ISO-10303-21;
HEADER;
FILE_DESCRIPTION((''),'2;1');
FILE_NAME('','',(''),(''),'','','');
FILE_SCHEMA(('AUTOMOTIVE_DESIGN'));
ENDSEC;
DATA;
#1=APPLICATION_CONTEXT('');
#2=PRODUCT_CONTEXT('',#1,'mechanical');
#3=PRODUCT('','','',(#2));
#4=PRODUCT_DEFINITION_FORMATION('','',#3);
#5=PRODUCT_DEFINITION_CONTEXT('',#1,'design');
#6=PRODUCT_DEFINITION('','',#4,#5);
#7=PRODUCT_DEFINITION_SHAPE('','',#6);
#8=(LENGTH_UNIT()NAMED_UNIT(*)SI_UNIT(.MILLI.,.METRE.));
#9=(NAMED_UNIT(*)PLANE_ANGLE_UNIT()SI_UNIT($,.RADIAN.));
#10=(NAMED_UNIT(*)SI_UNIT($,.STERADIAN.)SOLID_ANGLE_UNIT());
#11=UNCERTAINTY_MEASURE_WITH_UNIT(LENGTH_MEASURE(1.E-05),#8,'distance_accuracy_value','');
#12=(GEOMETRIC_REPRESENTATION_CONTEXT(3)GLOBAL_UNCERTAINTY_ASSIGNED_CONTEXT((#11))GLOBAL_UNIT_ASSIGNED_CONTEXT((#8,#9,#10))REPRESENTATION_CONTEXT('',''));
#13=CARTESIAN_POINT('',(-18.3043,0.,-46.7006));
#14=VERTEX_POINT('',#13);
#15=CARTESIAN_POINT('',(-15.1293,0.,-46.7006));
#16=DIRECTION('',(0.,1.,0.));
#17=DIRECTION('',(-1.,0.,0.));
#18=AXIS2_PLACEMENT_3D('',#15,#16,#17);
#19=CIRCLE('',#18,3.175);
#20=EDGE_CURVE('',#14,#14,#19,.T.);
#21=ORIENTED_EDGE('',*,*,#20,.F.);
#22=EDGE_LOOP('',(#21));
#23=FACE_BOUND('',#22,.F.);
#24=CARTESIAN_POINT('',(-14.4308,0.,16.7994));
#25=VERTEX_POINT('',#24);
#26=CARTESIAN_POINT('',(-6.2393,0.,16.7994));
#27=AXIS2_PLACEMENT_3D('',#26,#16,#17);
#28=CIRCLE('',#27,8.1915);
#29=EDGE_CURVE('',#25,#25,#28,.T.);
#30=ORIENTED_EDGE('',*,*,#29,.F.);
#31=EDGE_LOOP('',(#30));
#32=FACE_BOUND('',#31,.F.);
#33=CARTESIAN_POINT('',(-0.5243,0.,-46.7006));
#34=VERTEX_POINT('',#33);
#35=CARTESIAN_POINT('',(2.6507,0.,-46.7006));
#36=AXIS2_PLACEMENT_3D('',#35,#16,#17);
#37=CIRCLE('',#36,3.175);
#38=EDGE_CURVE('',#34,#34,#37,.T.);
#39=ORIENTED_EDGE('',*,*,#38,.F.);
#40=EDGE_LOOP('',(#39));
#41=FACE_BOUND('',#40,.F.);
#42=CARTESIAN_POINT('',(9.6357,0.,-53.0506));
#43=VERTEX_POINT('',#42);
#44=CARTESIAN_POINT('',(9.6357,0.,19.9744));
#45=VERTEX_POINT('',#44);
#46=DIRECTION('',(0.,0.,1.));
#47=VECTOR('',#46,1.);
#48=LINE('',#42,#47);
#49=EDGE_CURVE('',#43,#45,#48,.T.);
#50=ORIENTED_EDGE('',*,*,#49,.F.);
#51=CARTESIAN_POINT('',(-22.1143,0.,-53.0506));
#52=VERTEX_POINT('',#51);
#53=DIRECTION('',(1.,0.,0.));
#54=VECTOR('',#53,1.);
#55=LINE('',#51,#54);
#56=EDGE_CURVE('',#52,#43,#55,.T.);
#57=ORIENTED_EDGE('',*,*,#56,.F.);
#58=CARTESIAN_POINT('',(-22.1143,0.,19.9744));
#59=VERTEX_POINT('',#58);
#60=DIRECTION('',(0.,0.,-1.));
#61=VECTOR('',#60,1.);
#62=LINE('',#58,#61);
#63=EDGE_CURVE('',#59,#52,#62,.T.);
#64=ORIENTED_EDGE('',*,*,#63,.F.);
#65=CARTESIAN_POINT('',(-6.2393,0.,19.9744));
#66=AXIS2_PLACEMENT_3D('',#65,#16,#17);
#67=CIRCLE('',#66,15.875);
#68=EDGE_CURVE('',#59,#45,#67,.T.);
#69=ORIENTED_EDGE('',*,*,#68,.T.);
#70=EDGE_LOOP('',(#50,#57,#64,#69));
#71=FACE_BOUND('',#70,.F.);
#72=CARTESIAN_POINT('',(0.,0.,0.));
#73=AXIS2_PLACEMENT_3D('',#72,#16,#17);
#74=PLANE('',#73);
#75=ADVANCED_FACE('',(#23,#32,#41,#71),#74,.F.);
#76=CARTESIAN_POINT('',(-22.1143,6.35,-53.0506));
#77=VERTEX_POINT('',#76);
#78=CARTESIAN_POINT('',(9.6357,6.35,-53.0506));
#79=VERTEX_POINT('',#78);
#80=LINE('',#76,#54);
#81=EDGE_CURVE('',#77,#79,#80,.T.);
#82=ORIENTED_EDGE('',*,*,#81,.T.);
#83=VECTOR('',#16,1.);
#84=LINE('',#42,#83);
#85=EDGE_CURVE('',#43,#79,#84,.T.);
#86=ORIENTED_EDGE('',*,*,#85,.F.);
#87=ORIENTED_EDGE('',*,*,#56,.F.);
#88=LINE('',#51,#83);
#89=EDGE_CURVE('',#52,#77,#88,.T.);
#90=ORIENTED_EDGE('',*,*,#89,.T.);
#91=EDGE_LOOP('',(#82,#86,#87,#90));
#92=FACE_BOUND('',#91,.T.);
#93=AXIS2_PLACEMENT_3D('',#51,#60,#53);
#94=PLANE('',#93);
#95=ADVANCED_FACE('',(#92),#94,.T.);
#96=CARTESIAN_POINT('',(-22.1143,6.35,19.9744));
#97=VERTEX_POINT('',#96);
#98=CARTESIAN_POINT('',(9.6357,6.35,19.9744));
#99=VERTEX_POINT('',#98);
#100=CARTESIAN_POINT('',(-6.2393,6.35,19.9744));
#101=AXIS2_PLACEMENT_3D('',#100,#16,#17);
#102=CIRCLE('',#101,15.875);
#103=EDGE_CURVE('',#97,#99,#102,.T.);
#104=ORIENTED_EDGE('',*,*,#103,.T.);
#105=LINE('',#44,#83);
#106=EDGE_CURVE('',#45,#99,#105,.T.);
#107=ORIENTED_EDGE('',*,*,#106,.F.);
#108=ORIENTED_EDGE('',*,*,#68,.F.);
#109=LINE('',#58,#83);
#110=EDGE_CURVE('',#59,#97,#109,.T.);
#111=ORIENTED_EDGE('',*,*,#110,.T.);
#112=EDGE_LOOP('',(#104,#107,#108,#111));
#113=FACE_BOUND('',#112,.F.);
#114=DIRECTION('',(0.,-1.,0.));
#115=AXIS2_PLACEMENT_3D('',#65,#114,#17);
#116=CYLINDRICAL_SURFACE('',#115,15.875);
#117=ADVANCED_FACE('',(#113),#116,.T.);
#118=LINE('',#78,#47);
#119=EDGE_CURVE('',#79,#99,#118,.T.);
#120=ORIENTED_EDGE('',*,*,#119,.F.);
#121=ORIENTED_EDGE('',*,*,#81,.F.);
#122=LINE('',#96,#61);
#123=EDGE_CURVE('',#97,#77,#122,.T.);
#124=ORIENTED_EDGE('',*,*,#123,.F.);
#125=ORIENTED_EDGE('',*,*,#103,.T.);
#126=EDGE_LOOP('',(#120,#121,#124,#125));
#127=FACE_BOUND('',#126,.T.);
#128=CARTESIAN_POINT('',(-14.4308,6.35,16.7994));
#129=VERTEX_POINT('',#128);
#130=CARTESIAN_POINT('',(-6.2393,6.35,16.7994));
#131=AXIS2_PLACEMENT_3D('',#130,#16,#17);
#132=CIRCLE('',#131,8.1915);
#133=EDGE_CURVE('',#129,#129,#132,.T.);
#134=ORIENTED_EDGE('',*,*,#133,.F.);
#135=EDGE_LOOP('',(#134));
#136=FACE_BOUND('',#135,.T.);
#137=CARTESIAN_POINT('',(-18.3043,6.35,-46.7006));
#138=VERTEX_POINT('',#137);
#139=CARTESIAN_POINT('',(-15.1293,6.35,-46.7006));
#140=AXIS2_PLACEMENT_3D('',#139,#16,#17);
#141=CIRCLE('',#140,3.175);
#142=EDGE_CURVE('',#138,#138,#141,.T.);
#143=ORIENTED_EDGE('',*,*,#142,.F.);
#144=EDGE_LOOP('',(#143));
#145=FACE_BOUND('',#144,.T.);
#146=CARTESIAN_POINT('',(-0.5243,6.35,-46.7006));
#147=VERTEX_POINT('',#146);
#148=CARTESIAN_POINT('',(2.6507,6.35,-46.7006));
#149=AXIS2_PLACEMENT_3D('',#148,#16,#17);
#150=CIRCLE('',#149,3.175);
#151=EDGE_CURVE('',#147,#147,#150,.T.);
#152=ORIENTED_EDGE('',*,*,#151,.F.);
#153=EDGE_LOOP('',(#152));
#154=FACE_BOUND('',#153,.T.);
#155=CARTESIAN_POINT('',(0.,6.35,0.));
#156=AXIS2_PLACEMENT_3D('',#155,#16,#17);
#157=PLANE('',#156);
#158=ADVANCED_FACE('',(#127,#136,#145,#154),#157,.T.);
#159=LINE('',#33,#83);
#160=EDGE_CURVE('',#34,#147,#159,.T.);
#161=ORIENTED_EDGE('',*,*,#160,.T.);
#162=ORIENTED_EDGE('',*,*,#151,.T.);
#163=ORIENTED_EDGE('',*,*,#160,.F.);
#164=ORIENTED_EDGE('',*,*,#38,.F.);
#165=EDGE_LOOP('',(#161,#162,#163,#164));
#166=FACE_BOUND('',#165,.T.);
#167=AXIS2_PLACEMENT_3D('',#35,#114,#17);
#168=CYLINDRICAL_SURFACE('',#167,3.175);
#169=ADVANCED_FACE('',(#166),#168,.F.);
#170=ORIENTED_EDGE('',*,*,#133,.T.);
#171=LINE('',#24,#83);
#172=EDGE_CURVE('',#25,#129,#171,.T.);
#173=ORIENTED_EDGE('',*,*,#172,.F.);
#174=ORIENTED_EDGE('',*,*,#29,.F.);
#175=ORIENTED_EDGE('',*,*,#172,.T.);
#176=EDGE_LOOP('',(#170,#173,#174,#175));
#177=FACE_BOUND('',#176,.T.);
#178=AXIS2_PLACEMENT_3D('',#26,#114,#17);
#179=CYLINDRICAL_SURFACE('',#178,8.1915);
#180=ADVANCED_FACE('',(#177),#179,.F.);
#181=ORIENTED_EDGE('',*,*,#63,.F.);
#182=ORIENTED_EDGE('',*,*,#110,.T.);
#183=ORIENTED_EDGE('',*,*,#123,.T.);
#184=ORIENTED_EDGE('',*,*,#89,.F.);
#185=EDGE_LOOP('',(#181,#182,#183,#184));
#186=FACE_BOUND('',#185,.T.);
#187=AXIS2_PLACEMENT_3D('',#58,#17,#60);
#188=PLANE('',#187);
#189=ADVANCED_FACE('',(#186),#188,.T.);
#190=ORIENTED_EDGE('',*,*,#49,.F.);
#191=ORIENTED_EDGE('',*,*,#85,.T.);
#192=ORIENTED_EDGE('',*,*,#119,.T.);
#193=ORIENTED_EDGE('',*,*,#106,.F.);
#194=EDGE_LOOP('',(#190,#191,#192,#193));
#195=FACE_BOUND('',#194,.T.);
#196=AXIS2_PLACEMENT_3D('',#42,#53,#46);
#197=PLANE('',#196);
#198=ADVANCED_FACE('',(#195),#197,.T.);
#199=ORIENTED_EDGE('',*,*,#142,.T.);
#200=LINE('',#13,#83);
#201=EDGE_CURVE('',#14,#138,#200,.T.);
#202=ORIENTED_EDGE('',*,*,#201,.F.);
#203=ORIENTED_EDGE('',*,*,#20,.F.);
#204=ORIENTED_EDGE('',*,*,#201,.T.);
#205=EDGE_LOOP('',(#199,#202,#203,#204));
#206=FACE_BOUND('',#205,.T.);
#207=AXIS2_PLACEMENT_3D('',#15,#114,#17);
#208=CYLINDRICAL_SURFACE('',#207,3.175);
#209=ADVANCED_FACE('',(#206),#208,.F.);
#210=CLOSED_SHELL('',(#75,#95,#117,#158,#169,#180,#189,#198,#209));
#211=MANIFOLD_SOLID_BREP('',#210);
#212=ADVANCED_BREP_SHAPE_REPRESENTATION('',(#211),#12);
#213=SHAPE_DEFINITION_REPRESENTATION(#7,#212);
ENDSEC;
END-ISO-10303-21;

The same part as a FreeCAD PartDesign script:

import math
import FreeCAD as App
import Part
import Sketcher
Q = App.Units.Quantity

doc = App.newDocument("Part")
body = doc.addObject("PartDesign::Body", "Body")

# Sketch on XZ plane
sketch1 = body.newObject("Sketcher::SketchObject", "Sketch")
sketch1.AttachmentSupport = (doc.getObject("XZ_Plane"), [""])
sketch1.MapMode = "FlatFace"
sketch1.addGeometry(Part.LineSegment(App.Vector(-22.1, -53.1, 0), App.Vector(-22.1, 20, 0)), False)
sketch1.addGeometry(Part.ArcOfCircle(Part.Circle(App.Vector(-6.2, 20, 0), App.Vector(0, 0, 1), 15.9), math.radians(0), math.radians(180)), False)
sketch1.addGeometry(Part.LineSegment(App.Vector(9.6, 20, 0), App.Vector(9.6, -53.1, 0)), False)
sketch1.addGeometry(Part.LineSegment(App.Vector(9.6, -53.1, 0), App.Vector(-22.1, -53.1, 0)), False)
sketch1.addGeometry(Part.Circle(App.Vector(2.7, -46.7, 0), App.Vector(0, 0, 1), 3.2), False)
sketch1.addGeometry(Part.Circle(App.Vector(-15.1, -46.7, 0), App.Vector(0, 0, 1), 3.2), False)
sketch1.addGeometry(Part.Circle(App.Vector(-6.2, 16.8, 0), App.Vector(0, 0, 1), 8.2), False)
sketch1.addConstraint(Sketcher.Constraint("Tangent", 0, 2, 1, 2))
sketch1.addConstraint(Sketcher.Constraint("Tangent", 1, 1, 2, 1))
sketch1.addConstraint(Sketcher.Constraint("Coincident", 2, 2, 3, 1))
sketch1.addConstraint(Sketcher.Constraint("Coincident", 3, 2, 0, 1))
sketch1.addConstraint(Sketcher.Constraint("Vertical", 0))
sketch1.addConstraint(Sketcher.Constraint("Vertical", 2))
sketch1.addConstraint(Sketcher.Constraint("Horizontal", 3))
sketch1.addConstraint(Sketcher.Constraint("Equal", 4, 5))
sketch1.addConstraint(Sketcher.Constraint("Horizontal", 4, 3, 5, 3))
sketch1.addConstraint(Sketcher.Constraint("Vertical", 1, 3, 6, 3))
sketch1.addConstraint(Sketcher.Constraint("Diameter", 4, Q("0.25 in")))
sketch1.addConstraint(Sketcher.Constraint("Diameter", 6, Q("0.645 in")))
sketch1.addConstraint(Sketcher.Constraint("Radius", 1, Q("0.625 in")))
sketch1.addConstraint(Sketcher.Constraint("DistanceX", 5, 3, 4, 3, Q("0.7 in")))
sketch1.addConstraint(Sketcher.Constraint("DistanceY", 2, 2, 4, 3, Q("0.25 in")))
sketch1.addConstraint(Sketcher.Constraint("DistanceY", 6, 3, 1, 3, Q("0.125 in")))
sketch1.addConstraint(Sketcher.Constraint("DistanceX", 0, 2, 5, 3, Q("0.275 in")))
sketch1.addConstraint(Sketcher.Constraint("DistanceY", 4, 3, 6, 3, Q("2.5 in")))
sketch1.addConstraint(Sketcher.Constraint("DistanceY", -1, 1, 1, 3, Q("0.7864 in")))
sketch1.addConstraint(Sketcher.Constraint("DistanceX", 1, 3, -1, 1, Q("6.2393 mm")))
pad1 = body.newObject("PartDesign::Pad", "Pad")
pad1.Profile = sketch1
pad1.Length = Q("0.25 in")
pad1.Reversed = True

doc.recompute()
